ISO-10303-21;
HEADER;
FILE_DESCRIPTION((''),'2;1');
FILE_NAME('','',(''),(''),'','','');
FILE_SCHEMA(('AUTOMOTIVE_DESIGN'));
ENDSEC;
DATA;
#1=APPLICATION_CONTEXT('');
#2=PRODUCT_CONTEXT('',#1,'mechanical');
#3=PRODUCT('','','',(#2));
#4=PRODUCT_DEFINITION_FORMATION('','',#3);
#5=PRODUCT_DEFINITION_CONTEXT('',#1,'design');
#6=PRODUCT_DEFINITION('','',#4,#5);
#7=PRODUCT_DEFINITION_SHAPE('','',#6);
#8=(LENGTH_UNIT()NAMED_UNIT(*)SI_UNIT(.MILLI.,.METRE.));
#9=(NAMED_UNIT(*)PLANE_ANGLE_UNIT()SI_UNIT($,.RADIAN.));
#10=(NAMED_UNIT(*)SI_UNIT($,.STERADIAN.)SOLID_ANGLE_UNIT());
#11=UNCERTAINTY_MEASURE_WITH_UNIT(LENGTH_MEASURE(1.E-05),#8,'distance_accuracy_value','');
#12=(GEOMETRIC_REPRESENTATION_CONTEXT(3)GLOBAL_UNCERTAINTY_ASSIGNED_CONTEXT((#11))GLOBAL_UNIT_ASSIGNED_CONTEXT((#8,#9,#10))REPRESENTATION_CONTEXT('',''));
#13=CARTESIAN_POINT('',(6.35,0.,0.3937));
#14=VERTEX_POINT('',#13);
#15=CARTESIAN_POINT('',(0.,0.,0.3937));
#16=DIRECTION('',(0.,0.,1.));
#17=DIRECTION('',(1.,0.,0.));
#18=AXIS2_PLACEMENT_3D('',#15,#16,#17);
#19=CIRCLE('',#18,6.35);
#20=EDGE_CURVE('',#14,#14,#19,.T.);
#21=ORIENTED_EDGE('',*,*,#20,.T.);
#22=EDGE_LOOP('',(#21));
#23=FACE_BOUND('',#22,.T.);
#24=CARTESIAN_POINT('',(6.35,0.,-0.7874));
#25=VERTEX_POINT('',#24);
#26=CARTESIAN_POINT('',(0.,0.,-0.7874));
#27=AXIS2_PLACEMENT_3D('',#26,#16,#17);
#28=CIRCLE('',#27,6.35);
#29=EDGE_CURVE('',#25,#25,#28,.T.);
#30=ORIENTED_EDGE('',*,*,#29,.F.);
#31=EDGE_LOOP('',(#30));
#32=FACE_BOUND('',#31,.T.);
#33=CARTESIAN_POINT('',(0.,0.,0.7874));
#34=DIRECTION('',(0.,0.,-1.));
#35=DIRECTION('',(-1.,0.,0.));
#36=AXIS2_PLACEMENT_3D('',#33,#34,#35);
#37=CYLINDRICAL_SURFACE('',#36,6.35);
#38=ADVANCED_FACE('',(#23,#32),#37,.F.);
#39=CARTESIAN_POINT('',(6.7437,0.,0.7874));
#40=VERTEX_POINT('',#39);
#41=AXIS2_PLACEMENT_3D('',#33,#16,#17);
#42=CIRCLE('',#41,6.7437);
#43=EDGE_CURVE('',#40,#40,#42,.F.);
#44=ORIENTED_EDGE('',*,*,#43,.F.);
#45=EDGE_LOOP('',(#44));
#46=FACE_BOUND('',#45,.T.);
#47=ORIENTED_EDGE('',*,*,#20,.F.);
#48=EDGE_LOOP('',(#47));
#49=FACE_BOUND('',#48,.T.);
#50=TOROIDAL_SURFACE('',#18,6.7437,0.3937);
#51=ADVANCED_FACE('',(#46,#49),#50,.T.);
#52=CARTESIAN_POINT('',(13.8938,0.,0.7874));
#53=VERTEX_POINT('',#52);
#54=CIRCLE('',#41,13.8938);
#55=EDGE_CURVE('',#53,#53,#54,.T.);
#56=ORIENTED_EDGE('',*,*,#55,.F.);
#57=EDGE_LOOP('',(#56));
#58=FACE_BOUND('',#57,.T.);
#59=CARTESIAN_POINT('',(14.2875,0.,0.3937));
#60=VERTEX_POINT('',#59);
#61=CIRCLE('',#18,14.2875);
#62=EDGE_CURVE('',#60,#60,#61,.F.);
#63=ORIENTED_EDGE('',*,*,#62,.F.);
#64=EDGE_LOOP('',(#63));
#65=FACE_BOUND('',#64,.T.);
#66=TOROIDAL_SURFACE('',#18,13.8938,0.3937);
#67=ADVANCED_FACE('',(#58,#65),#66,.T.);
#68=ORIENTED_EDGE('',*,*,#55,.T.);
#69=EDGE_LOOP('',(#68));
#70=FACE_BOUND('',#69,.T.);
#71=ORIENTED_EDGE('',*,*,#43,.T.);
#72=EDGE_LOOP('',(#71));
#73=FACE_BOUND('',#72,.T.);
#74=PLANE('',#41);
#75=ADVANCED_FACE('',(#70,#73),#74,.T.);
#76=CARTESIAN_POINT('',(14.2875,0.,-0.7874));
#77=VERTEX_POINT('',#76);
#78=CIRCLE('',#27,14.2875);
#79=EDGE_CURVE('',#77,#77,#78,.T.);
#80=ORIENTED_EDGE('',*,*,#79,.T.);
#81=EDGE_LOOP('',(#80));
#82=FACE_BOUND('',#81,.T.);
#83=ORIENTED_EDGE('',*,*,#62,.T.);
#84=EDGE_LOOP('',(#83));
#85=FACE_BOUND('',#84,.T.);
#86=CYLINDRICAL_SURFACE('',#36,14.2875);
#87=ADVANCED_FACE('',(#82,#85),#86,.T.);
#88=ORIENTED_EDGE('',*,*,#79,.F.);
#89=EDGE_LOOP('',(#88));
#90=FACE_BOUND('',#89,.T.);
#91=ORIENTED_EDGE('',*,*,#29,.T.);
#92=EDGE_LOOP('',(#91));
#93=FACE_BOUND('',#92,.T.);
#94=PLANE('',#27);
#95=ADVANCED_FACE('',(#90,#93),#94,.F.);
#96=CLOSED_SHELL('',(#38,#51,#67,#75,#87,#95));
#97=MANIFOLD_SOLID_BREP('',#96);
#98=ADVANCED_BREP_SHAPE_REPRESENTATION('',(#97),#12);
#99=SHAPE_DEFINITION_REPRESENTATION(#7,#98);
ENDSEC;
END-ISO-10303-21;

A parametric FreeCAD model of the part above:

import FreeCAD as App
import Part
import Sketcher

V = App.Vector
Q = App.Units.Quantity


def edges_at(feature, points):
    """Names of the edges that pass closest to the given points."""
    edges = feature.Shape.Edges
    near = lambda p: min(range(len(edges)), key=lambda i: edges[i].distToShape(Part.Vertex(*p))[0])
    return sorted({f"Edge{near(p) + 1}" for p in points})

doc = App.newDocument("Part")
body = doc.addObject("PartDesign::Body", "Body")

# Sketch on XY plane
sketch1 = doc.addObject("Sketcher::SketchObject", "Sketch")
body.addObject(sketch1)
sketch1.AttachmentSupport = (doc.XY_Plane, [""])
sketch1.MapMode = "FlatFace"
sketch1.addGeometry([
    Part.Circle(V(0, 0, 0), V(0, 0, 1), 14),
    Part.Circle(V(0, 0, 0), V(0, 0, 1), 6),
], False)
sketch1.addConstraint([
    Sketcher.Constraint("Coincident", 0, 3, -1, 1),
    Sketcher.Constraint("Coincident", 1, 3, -1, 1),
    Sketcher.Constraint("Diameter", 1, Q("0.5 in")),
    Sketcher.Constraint("Diameter", 0, Q("1.125 in")),
])
pad1 = doc.addObject("PartDesign::Pad", "Pad")
body.addObject(pad1)
pad1.Profile = sketch1
pad1.Type = "TwoLengths"
pad1.Length = Q("0.031 in")
pad1.Length2 = Q("0.031 in")
doc.recompute()

fillet = doc.addObject("PartDesign::Fillet", "Fillet")
body.addObject(fillet)
fillet.Base = (pad1, edges_at(pad1, [(-14.287, 0, 0.787), (-6.35, 0, 0.787)]))
fillet.Radius = Q("0.0155 in")

doc.recompute()
